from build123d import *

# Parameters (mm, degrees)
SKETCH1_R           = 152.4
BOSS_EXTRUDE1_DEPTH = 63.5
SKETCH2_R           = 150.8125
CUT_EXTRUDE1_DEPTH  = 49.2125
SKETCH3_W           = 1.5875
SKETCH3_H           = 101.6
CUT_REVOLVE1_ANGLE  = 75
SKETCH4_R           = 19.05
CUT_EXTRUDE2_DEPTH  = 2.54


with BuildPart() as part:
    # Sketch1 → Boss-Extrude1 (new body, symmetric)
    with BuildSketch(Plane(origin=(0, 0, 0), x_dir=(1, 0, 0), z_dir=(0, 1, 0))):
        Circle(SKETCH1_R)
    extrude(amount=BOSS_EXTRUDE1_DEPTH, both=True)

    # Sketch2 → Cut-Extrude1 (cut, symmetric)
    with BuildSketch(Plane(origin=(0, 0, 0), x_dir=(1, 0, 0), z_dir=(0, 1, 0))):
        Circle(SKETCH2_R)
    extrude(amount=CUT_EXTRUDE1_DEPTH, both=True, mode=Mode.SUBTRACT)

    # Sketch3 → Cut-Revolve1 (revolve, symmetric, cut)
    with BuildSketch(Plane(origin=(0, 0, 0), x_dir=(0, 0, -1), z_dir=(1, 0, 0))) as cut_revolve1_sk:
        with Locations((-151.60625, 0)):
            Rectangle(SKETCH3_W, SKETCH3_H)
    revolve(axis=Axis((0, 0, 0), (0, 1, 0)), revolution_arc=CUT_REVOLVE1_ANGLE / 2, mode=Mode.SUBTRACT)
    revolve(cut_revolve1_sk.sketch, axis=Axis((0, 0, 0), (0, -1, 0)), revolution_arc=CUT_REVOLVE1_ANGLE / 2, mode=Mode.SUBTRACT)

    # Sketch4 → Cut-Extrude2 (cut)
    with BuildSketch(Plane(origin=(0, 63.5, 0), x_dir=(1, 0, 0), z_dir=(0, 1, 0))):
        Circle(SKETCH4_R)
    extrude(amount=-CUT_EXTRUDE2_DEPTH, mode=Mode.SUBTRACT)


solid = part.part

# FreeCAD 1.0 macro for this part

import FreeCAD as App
import Part
import Sketcher
Q = App.Units.Quantity

doc = App.newDocument("Part")
body = doc.addObject("PartDesign::Body", "Body")

# Sketch on XZ plane
sketch1 = body.newObject("Sketcher::SketchObject", "Sketch")
sketch1.AttachmentSupport = (doc.getObject("XZ_Plane"), [""])
sketch1.MapMode = "FlatFace"
sketch1.addGeometry(Part.Circle(App.Vector(0, 0, 0), App.Vector(0, 0, 1), 152), False)
sketch1.addConstraint([
    Sketcher.Constraint("Coincident", 0, 3, -1, 1),
    Sketcher.Constraint("Diameter", 0, Q("12 in")),
])
pad1 = body.newObject("PartDesign::Pad", "Pad")
pad1.Profile = sketch1
pad1.Length = Q("5 in")
pad1.Midplane = True

# Sketch on XZ plane
sketch2 = body.newObject("Sketcher::SketchObject", "Sketch001")
sketch2.AttachmentSupport = (doc.getObject("XZ_Plane"), [""])
sketch2.MapMode = "FlatFace"
sketch2.addGeometry(Part.Circle(App.Vector(0, 0, 0), App.Vector(0, 0, 1), 151), False)
sketch2.addConstraint([
    Sketcher.Constraint("Coincident", 0, 3, -1, 1),
    Sketcher.Constraint("Diameter", 0, Q("11.875 in")),
])
pocket1 = body.newObject("PartDesign::Pocket", "Pocket")
pocket1.Profile = sketch2
pocket1.Length = Q("3.875 in")
pocket1.Midplane = True

# Sketch on YZ plane
sketch3 = body.newObject("Sketcher::SketchObject", "Sketch002")
sketch3.AttachmentSupport = (doc.getObject("YZ_Plane"), [""])
sketch3.MapMode = "FlatFace"
sketch3.addGeometry([
    Part.LineSegment(App.Vector(50.8, 152.4, 0), App.Vector(-50.8, 152.4, 0)),
    Part.LineSegment(App.Vector(-50.8, 152.4, 0), App.Vector(-50.8, 150.8, 0)),
    Part.LineSegment(App.Vector(-50.8, 150.8, 0), App.Vector(50.8, 150.8, 0)),
    Part.LineSegment(App.Vector(50.8, 150.8, 0), App.Vector(50.8, 152.4, 0)),
], False)
sketch3.addConstraint([
    Sketcher.Constraint("Coincident", 0, 2, 1, 1),
    Sketcher.Constraint("Coincident", 1, 2, 2, 1),
    Sketcher.Constraint("Coincident", 2, 2, 3, 1),
    Sketcher.Constraint("Coincident", 3, 2, 0, 1),
    Sketcher.Constraint("Horizontal", 0),
    Sketcher.Constraint("Vertical", 1),
    Sketcher.Constraint("Horizontal", 2),
    Sketcher.Constraint("Vertical", 3),
    Sketcher.Constraint("DistanceX", 0, 2, 0, 1, Q("4 in")),
    Sketcher.Constraint("DistanceX", 0, 2, -1, 1, Q("2 in")),
    Sketcher.Constraint("DistanceY", -1, 1, 0, 2, Q("6 in")),
    Sketcher.Constraint("DistanceY", 1, 2, 1, 1, Q("0.0625 in")),
])
groove = body.newObject("PartDesign::Groove", "Groove")
groove.Profile = sketch3
groove.ReferenceAxis = (sketch3, ["H_Axis"])
groove.Angle = 37.5

# Sketch on YZ plane
sketch4 = body.newObject("Sketcher::SketchObject", "Sketch003")
sketch4.AttachmentSupport = (doc.getObject("YZ_Plane"), [""])
sketch4.MapMode = "FlatFace"
sketch4.addGeometry([
    Part.LineSegment(App.Vector(50.8, 152.4, 0), App.Vector(-50.8, 152.4, 0)),
    Part.LineSegment(App.Vector(-50.8, 152.4, 0), App.Vector(-50.8, 150.8, 0)),
    Part.LineSegment(App.Vector(-50.8, 150.8, 0), App.Vector(50.8, 150.8, 0)),
    Part.LineSegment(App.Vector(50.8, 150.8, 0), App.Vector(50.8, 152.4, 0)),
], False)
sketch4.addConstraint([
    Sketcher.Constraint("Coincident", 0, 2, 1, 1),
    Sketcher.Constraint("Coincident", 1, 2, 2, 1),
    Sketcher.Constraint("Coincident", 2, 2, 3, 1),
    Sketcher.Constraint("Coincident", 3, 2, 0, 1),
    Sketcher.Constraint("Horizontal", 0),
    Sketcher.Constraint("Vertical", 1),
    Sketcher.Constraint("Horizontal", 2),
    Sketcher.Constraint("Vertical", 3),
    Sketcher.Constraint("DistanceX", 0, 2, 0, 1, Q("4 in")),
    Sketcher.Constraint("DistanceX", 0, 2, -1, 1, Q("2 in")),
    Sketcher.Constraint("DistanceY", -1, 1, 0, 2, Q("6 in")),
    Sketcher.Constraint("DistanceY", 1, 2, 1, 1, Q("0.0625 in")),
])
groove2 = body.newObject("PartDesign::Groove", "Groove001")
groove2.Profile = sketch4
groove2.ReferenceAxis = (sketch4, ["H_Axis"])
groove2.Angle = 37.5
groove2.Reversed = True

# Sketch on XZ plane
sketch5 = body.newObject("Sketcher::SketchObject", "Sketch004")
sketch5.AttachmentSupport = (doc.getObject("XZ_Plane"), [""])
sketch5.MapMode = "FlatFace"
sketch5.AttachmentOffset = App.Placement(App.Vector(0, 0, -2.5 * 25.4), App.Rotation())
sketch5.addGeometry(Part.Circle(App.Vector(0, 0, 0), App.Vector(0, 0, 1), 19), False)
sketch5.addConstraint([
    Sketcher.Constraint("Coincident", 0, 3, -1, 1),
    Sketcher.Constraint("Diameter", 0, Q("1.5 in")),
])
pocket2 = body.newObject("PartDesign::Pocket", "Pocket001")
pocket2.Profile = sketch5
pocket2.Length = Q("0.1 in")
pocket2.Reversed = True

doc.recompute()
